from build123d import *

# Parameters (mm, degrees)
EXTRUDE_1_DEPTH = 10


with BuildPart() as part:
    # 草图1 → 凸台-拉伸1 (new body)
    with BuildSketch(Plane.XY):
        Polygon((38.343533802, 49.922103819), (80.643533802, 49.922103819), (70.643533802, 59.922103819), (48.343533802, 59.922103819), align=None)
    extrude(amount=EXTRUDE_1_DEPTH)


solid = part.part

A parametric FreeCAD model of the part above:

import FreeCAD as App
import Part
import Sketcher
Q = App.Units.Quantity

doc = App.newDocument("Part")
body = doc.addObject("PartDesign::Body", "Body")

# Sketch on XY plane
sketch1 = body.newObject("Sketcher::SketchObject", "Sketch")
sketch1.AttachmentSupport = (doc.getObject("XY_Plane"), [""])
sketch1.MapMode = "FlatFace"
sketch1.addGeometry([
    Part.LineSegment(App.Vector(38.343534, 49.922104, 0), App.Vector(80.643534, 49.922104, 0)),
    Part.LineSegment(App.Vector(80.643534, 49.922104, 0), App.Vector(70.643534, 59.922104, 0)),
    Part.LineSegment(App.Vector(70.643534, 59.922104, 0), App.Vector(48.343534, 59.922104, 0)),
    Part.LineSegment(App.Vector(48.343534, 59.922104, 0), App.Vector(38.343534, 49.922104, 0)),
], False)
sketch1.addConstraint([
    Sketcher.Constraint("Coincident", 0, 2, 1, 1),
    Sketcher.Constraint("Coincident", 1, 2, 2, 1),
    Sketcher.Constraint("Coincident", 2, 2, 3, 1),
    Sketcher.Constraint("Coincident", 3, 2, 0, 1),
    Sketcher.Constraint("Horizontal", 0),
    Sketcher.Constraint("Horizontal", 2),
    Sketcher.Constraint("Perpendicular", 1, 3),
    Sketcher.Constraint("Equal", 1, 3),
    Sketcher.Constraint("DistanceX", 0, 1, 0, 2, Q("42.3 mm")),
    Sketcher.Constraint("DistanceX", 2, 2, 2, 1, Q("22.3 mm")),
    Sketcher.Constraint("DistanceX", -1, 1, 0, 2, Q("80.643534 mm")),
    Sketcher.Constraint("DistanceY", -1, 1, 0, 2, Q("49.922104 mm")),
])
pad1 = body.newObject("PartDesign::Pad", "Pad")
pad1.Profile = sketch1
pad1.Length = 10

doc.recompute()
